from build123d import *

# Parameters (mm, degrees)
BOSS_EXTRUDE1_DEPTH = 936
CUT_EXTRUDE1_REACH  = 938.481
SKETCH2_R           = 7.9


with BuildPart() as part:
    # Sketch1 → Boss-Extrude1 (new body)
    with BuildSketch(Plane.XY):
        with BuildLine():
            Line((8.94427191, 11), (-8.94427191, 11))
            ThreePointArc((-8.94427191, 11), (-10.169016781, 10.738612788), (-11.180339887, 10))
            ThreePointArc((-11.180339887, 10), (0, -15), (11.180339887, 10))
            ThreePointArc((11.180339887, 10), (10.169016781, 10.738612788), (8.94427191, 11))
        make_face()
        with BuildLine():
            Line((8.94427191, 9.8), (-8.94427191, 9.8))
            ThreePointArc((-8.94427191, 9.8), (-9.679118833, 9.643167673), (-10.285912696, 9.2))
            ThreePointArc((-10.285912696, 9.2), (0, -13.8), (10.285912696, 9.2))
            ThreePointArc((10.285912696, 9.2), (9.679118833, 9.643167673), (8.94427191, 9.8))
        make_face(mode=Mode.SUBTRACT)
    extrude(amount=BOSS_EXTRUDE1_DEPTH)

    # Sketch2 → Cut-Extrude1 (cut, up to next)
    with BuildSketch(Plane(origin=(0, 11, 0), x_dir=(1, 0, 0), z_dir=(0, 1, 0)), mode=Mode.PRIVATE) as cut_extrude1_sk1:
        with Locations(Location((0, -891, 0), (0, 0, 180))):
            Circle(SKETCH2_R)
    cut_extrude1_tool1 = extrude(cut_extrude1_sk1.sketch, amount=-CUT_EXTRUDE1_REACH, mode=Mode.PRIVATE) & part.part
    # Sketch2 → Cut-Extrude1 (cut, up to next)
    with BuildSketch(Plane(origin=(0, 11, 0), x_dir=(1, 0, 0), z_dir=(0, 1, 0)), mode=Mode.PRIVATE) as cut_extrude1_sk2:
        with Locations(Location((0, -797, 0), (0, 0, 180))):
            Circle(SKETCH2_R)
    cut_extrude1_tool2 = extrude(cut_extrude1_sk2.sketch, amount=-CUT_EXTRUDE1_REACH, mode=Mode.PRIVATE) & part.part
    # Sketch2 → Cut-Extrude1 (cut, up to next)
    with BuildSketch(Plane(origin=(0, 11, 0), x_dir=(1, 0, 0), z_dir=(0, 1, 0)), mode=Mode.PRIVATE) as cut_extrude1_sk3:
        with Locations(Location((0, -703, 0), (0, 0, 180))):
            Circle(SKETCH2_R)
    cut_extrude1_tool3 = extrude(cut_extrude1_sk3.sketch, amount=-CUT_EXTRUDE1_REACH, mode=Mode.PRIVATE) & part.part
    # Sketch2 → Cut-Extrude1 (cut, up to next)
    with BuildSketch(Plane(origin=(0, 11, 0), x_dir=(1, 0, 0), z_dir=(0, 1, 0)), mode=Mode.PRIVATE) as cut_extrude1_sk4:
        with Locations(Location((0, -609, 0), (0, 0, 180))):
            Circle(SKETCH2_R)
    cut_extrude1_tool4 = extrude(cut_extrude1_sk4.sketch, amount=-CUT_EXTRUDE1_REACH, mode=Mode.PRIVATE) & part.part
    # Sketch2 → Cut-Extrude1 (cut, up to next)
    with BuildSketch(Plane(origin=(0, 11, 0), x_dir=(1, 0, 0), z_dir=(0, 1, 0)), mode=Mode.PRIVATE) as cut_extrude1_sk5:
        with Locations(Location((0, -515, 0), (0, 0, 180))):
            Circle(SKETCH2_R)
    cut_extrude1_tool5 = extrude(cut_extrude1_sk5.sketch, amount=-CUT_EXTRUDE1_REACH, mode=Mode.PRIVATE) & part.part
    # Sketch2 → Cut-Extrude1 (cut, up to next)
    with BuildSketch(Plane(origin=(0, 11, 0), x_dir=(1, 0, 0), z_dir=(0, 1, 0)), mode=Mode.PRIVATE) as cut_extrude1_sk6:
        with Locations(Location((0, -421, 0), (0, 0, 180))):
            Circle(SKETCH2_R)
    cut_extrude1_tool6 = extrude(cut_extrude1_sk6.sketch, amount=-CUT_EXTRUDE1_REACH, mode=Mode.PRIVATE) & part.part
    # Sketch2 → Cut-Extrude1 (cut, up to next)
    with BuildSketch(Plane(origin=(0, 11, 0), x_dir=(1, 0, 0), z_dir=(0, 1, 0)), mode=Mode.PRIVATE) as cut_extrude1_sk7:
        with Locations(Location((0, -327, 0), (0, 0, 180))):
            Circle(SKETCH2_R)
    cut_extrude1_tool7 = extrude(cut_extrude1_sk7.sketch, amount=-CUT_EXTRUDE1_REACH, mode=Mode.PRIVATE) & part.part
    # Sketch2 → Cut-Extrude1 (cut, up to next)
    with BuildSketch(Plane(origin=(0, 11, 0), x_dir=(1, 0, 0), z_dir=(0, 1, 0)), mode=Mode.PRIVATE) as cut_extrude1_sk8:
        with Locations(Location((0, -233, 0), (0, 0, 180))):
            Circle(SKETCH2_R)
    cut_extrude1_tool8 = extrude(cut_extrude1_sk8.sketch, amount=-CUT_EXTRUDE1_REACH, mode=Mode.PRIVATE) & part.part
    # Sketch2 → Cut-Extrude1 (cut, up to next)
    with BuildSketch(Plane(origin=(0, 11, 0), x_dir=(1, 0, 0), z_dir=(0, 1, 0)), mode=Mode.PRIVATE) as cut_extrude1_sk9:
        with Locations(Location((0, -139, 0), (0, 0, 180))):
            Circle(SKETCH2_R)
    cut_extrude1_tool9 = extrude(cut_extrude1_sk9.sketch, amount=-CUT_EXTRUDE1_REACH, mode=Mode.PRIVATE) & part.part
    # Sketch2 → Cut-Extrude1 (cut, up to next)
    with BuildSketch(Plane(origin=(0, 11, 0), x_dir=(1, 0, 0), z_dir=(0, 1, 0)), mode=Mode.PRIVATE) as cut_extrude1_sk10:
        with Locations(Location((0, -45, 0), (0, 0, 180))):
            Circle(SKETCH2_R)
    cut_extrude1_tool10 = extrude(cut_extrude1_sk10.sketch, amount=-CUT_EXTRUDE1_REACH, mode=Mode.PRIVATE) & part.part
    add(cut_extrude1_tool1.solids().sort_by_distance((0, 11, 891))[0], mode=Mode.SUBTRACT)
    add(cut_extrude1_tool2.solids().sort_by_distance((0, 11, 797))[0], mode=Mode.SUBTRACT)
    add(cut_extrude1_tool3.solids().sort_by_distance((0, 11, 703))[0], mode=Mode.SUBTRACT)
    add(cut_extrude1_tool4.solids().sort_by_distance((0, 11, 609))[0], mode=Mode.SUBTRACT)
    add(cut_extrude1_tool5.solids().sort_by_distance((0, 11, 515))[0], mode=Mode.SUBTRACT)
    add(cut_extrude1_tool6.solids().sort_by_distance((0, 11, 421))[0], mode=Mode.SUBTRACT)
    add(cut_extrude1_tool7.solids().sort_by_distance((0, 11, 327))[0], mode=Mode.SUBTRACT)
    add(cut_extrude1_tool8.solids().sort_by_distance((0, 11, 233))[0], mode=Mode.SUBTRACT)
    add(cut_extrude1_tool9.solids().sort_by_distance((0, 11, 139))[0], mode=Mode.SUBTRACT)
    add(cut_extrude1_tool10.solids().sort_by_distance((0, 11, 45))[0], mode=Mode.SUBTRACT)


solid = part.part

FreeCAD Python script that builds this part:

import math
import FreeCAD as App
import Part
import Sketcher
from FreeCAD import Vector

doc = App.newDocument("Part")
body = doc.addObject("PartDesign::Body", "Body")

sketch1 = body.newObject("Sketcher::SketchObject", "Sketch")
sketch1.AttachmentSupport = (doc.getObject("XY_Plane"), [""])
sketch1.MapMode = "FlatFace"
sketch1.addGeometry([
    Part.LineSegment(Vector(8.9, 11, 0), Vector(-8.9, 11, 0)),
    Part.ArcOfCircle(Part.Circle(Vector(-8.9, 8, 0), Vector(0, 0, 1), 3), math.radians(90), math.radians(138)),
    Part.ArcOfCircle(Part.Circle(Vector(0, 0, 0), Vector(0, 0, 1), 15), math.radians(138), math.radians(402)),
    Part.ArcOfCircle(Part.Circle(Vector(8.9, 8, 0), Vector(0, 0, 1), 3), math.radians(42), math.radians(90)),
    Part.LineSegment(Vector(-8.9, 9.8, 0), Vector(8.9, 9.8, 0)),
    Part.ArcOfCircle(Part.Circle(Vector(8.9, 8, 0), Vector(0, 0, 1), 1.8), math.radians(42), math.radians(90)),
    Part.ArcOfCircle(Part.Circle(Vector(0, 0, 0), Vector(0, 0, 1), 13.8), math.radians(138), math.radians(402)),
    Part.ArcOfCircle(Part.Circle(Vector(-8.9, 8, 0), Vector(0, 0, 1), 1.8), math.radians(90), math.radians(138)),
], False)
sketch1.addConstraint([
    Sketcher.Constraint("Tangent", 0, 2, 1, 1),
    Sketcher.Constraint("Tangent", 1, 2, 2, 1),
    Sketcher.Constraint("Tangent", 2, 2, 3, 1),
    Sketcher.Constraint("Tangent", 3, 2, 0, 1),
    Sketcher.Constraint("Tangent", 4, 2, 5, 2),
    Sketcher.Constraint("Tangent", 5, 1, 6, 2),
    Sketcher.Constraint("Tangent", 6, 1, 7, 2),
    Sketcher.Constraint("Tangent", 7, 1, 4, 1),
    Sketcher.Constraint("Horizontal", 0),
    Sketcher.Constraint("Horizontal", 4),
    Sketcher.Constraint("Coincident", 2, 3, -1, 1),
    Sketcher.Constraint("Coincident", 6, 3, -1, 1),
    Sketcher.Constraint("Coincident", 5, 3, 3, 3),
    Sketcher.Constraint("Equal", 1, 3),
    Sketcher.Constraint("Equal", 5, 7),
    Sketcher.Constraint("Radius", 1, 3.0),
    Sketcher.Constraint("Radius", 2, 15.0),
    Sketcher.Constraint("Radius", 5, 1.8),
    Sketcher.Constraint("DistanceY", -1, 1, 1, 3, 8.0),
])
pad1 = body.newObject("PartDesign::Pad", "Pad")
pad1.Profile = sketch1
pad1.Length = 936

sketch2 = body.newObject("Sketcher::SketchObject", "Sketch001")
sketch2.AttachmentSupport = (doc.getObject("XZ_Plane"), [""])
sketch2.MapMode = "FlatFace"
sketch2.AttachmentOffset = App.Placement(Vector(0, 0, -11), App.Rotation())
sketch2.addGeometry(Part.Circle(Vector(0, 891, 0), Vector(0, 0, 1), 8), False)
sketch2.addConstraint([
    Sketcher.Constraint("PointOnObject", 0, 3, -2),
    Sketcher.Constraint("Diameter", 0, 15.8),
    Sketcher.Constraint("DistanceY", -1, 1, 0, 3, 891.0),
])
pocket1 = body.newObject("PartDesign::Pocket", "Pocket")
pocket1.Profile = sketch2
pocket1.Type = "UpToFirst"
pocket1.Reversed = True

sketch3 = body.newObject("Sketcher::SketchObject", "Sketch002")
sketch3.AttachmentSupport = (doc.getObject("XZ_Plane"), [""])
sketch3.MapMode = "FlatFace"
sketch3.AttachmentOffset = App.Placement(Vector(0, 0, -11), App.Rotation())
sketch3.addGeometry(Part.Circle(Vector(0, 797, 0), Vector(0, 0, 1), 8), False)
sketch3.addConstraint([
    Sketcher.Constraint("PointOnObject", 0, 3, -2),
    Sketcher.Constraint("Diameter", 0, 15.8),
    Sketcher.Constraint("DistanceY", -1, 1, 0, 3, 797.0),
])
pocket2 = body.newObject("PartDesign::Pocket", "Pocket001")
pocket2.Profile = sketch3
pocket2.Type = "UpToFirst"
pocket2.Reversed = True

sketch4 = body.newObject("Sketcher::SketchObject", "Sketch003")
sketch4.AttachmentSupport = (doc.getObject("XZ_Plane"), [""])
sketch4.MapMode = "FlatFace"
sketch4.AttachmentOffset = App.Placement(Vector(0, 0, -11), App.Rotation())
sketch4.addGeometry(Part.Circle(Vector(0, 703, 0), Vector(0, 0, 1), 8), False)
sketch4.addConstraint([
    Sketcher.Constraint("PointOnObject", 0, 3, -2),
    Sketcher.Constraint("Diameter", 0, 15.8),
    Sketcher.Constraint("DistanceY", -1, 1, 0, 3, 703.0),
])
pocket3 = body.newObject("PartDesign::Pocket", "Pocket002")
pocket3.Profile = sketch4
pocket3.Type = "UpToFirst"
pocket3.Reversed = True

sketch5 = body.newObject("Sketcher::SketchObject", "Sketch004")
sketch5.AttachmentSupport = (doc.getObject("XZ_Plane"), [""])
sketch5.MapMode = "FlatFace"
sketch5.AttachmentOffset = App.Placement(Vector(0, 0, -11), App.Rotation())
sketch5.addGeometry(Part.Circle(Vector(0, 609, 0), Vector(0, 0, 1), 8), False)
sketch5.addConstraint([
    Sketcher.Constraint("PointOnObject", 0, 3, -2),
    Sketcher.Constraint("Diameter", 0, 15.8),
    Sketcher.Constraint("DistanceY", -1, 1, 0, 3, 609.0),
])
pocket4 = body.newObject("PartDesign::Pocket", "Pocket003")
pocket4.Profile = sketch5
pocket4.Type = "UpToFirst"
pocket4.Reversed = True

sketch6 = body.newObject("Sketcher::SketchObject", "Sketch005")
sketch6.AttachmentSupport = (doc.getObject("XZ_Plane"), [""])
sketch6.MapMode = "FlatFace"
sketch6.AttachmentOffset = App.Placement(Vector(0, 0, -11), App.Rotation())
sketch6.addGeometry(Part.Circle(Vector(0, 515, 0), Vector(0, 0, 1), 8), False)
sketch6.addConstraint([
    Sketcher.Constraint("PointOnObject", 0, 3, -2),
    Sketcher.Constraint("Diameter", 0, 15.8),
    Sketcher.Constraint("DistanceY", -1, 1, 0, 3, 515.0),
])
pocket5 = body.newObject("PartDesign::Pocket", "Pocket004")
pocket5.Profile = sketch6
pocket5.Type = "UpToFirst"
pocket5.Reversed = True

sketch7 = body.newObject("Sketcher::SketchObject", "Sketch006")
sketch7.AttachmentSupport = (doc.getObject("XZ_Plane"), [""])
sketch7.MapMode = "FlatFace"
sketch7.AttachmentOffset = App.Placement(Vector(0, 0, -11), App.Rotation())
sketch7.addGeometry(Part.Circle(Vector(0, 421, 0), Vector(0, 0, 1), 8), False)
sketch7.addConstraint([
    Sketcher.Constraint("PointOnObject", 0, 3, -2),
    Sketcher.Constraint("Diameter", 0, 15.8),
    Sketcher.Constraint("DistanceY", -1, 1, 0, 3, 421.0),
])
pocket6 = body.newObject("PartDesign::Pocket", "Pocket005")
pocket6.Profile = sketch7
pocket6.Type = "UpToFirst"
pocket6.Reversed = True

sketch8 = body.newObject("Sketcher::SketchObject", "Sketch007")
sketch8.AttachmentSupport = (doc.getObject("XZ_Plane"), [""])
sketch8.MapMode = "FlatFace"
sketch8.AttachmentOffset = App.Placement(Vector(0, 0, -11), App.Rotation())
sketch8.addGeometry(Part.Circle(Vector(0, 327, 0), Vector(0, 0, 1), 8), False)
sketch8.addConstraint([
    Sketcher.Constraint("PointOnObject", 0, 3, -2),
    Sketcher.Constraint("Diameter", 0, 15.8),
    Sketcher.Constraint("DistanceY", -1, 1, 0, 3, 327.0),
])
pocket7 = body.newObject("PartDesign::Pocket", "Pocket006")
pocket7.Profile = sketch8
pocket7.Type = "UpToFirst"
pocket7.Reversed = True

sketch9 = body.newObject("Sketcher::SketchObject", "Sketch008")
sketch9.AttachmentSupport = (doc.getObject("XZ_Plane"), [""])
sketch9.MapMode = "FlatFace"
sketch9.AttachmentOffset = App.Placement(Vector(0, 0, -11), App.Rotation())
sketch9.addGeometry(Part.Circle(Vector(0, 233, 0), Vector(0, 0, 1), 8), False)
sketch9.addConstraint([
    Sketcher.Constraint("PointOnObject", 0, 3, -2),
    Sketcher.Constraint("Diameter", 0, 15.8),
    Sketcher.Constraint("DistanceY", -1, 1, 0, 3, 233.0),
])
pocket8 = body.newObject("PartDesign::Pocket", "Pocket007")
pocket8.Profile = sketch9
pocket8.Type = "UpToFirst"
pocket8.Reversed = True

sketch10 = body.newObject("Sketcher::SketchObject", "Sketch009")
sketch10.AttachmentSupport = (doc.getObject("XZ_Plane"), [""])
sketch10.MapMode = "FlatFace"
sketch10.AttachmentOffset = App.Placement(Vector(0, 0, -11), App.Rotation())
sketch10.addGeometry(Part.Circle(Vector(0, 139, 0), Vector(0, 0, 1), 8), False)
sketch10.addConstraint([
    Sketcher.Constraint("PointOnObject", 0, 3, -2),
    Sketcher.Constraint("Diameter", 0, 15.8),
    Sketcher.Constraint("DistanceY", -1, 1, 0, 3, 139.0),
])
pocket9 = body.newObject("PartDesign::Pocket", "Pocket008")
pocket9.Profile = sketch10
pocket9.Type = "UpToFirst"
pocket9.Reversed = True

sketch11 = body.newObject("Sketcher::SketchObject", "Sketch010")
sketch11.AttachmentSupport = (doc.getObject("XZ_Plane"), [""])
sketch11.MapMode = "FlatFace"
sketch11.AttachmentOffset = App.Placement(Vector(0, 0, -11), App.Rotation())
sketch11.addGeometry(Part.Circle(Vector(0, 45, 0), Vector(0, 0, 1), 8), False)
sketch11.addConstraint([
    Sketcher.Constraint("PointOnObject", 0, 3, -2),
    Sketcher.Constraint("Diameter", 0, 15.8),
    Sketcher.Constraint("DistanceY", -1, 1, 0, 3, 45.0),
])
pocket10 = body.newObject("PartDesign::Pocket", "Pocket009")
pocket10.Profile = sketch11
pocket10.Type = "UpToFirst"
pocket10.Reversed = True

doc.recompute()
